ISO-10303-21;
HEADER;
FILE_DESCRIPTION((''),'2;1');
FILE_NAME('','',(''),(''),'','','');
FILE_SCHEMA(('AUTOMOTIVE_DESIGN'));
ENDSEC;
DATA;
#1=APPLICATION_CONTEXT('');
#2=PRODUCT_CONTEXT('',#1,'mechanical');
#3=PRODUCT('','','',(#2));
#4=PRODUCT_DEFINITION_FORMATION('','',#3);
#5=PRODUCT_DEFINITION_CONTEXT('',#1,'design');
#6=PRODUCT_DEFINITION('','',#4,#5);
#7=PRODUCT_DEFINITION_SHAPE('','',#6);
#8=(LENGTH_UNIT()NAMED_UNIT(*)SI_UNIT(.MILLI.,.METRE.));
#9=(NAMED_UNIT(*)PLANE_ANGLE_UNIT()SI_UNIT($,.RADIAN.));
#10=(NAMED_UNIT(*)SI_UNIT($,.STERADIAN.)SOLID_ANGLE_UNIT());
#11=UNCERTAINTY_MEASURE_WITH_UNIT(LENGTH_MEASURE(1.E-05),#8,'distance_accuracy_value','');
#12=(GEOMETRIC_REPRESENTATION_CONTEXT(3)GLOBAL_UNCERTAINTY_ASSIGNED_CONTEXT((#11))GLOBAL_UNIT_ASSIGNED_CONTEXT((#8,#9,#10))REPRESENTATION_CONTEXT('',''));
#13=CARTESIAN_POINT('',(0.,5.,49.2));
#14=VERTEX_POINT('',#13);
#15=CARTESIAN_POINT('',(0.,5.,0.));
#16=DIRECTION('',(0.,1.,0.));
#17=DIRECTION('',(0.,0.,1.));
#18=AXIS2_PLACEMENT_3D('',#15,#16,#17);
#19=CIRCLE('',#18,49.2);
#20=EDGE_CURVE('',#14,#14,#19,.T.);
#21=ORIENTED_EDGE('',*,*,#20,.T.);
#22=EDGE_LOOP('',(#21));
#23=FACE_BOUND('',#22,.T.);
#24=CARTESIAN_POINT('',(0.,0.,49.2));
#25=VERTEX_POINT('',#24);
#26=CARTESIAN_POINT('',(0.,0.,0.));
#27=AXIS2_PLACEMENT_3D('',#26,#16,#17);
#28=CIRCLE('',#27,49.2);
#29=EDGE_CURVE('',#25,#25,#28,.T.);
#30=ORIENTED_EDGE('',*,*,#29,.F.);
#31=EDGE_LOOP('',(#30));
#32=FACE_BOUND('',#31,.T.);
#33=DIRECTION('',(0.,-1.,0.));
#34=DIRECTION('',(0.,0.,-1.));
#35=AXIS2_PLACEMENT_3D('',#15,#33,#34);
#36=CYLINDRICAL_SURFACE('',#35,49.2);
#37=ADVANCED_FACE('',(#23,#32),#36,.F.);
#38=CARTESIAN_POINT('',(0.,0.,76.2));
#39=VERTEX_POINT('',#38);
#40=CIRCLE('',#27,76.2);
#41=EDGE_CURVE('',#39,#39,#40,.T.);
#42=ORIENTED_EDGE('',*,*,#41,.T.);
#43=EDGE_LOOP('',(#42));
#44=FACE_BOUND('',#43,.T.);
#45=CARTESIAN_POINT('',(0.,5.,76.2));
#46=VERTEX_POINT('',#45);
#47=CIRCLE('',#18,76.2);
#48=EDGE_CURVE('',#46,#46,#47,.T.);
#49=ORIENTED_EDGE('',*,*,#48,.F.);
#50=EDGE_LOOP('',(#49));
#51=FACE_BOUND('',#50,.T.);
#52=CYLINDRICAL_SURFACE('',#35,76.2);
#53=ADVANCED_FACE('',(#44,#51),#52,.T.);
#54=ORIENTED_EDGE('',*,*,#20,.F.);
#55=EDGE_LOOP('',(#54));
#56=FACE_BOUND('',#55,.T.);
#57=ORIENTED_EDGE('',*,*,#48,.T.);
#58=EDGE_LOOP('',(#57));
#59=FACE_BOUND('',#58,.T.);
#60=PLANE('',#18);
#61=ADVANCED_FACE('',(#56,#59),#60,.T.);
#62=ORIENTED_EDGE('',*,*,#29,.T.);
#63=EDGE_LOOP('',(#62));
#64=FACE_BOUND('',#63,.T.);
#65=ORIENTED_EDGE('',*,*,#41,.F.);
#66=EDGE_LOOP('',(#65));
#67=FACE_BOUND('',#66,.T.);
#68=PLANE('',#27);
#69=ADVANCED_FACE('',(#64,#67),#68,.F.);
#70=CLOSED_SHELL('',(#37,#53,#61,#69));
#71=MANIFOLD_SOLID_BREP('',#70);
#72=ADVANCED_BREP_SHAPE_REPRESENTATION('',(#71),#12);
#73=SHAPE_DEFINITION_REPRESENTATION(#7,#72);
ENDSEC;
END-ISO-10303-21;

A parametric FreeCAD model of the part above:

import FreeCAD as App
import Part
import Sketcher
from FreeCAD import Vector

doc = App.newDocument("Part")
body = doc.addObject("PartDesign::Body", "Body")

# Sketch on XZ plane
sketch1 = body.newObject("Sketcher::SketchObject", "Sketch")
sketch1.AttachmentSupport = (doc.getObject("XZ_Plane"), [""])
sketch1.MapMode = "FlatFace"
sketch1.addGeometry(Part.Circle(Vector(0, 0, 0), Vector(0, 0, 1), 76), False)
sketch1.addGeometry(Part.Circle(Vector(0, 0, 0), Vector(0, 0, 1), 49), False)
sketch1.addConstraint(Sketcher.Constraint("Coincident", 0, 3, -1, 1))
sketch1.addConstraint(Sketcher.Constraint("Coincident", 1, 3, -1, 1))
sketch1.addConstraint(Sketcher.Constraint("Diameter", 0, 152.4))
sketch1.addConstraint(Sketcher.Constraint("Diameter", 1, 98.4))
pad1 = body.newObject("PartDesign::Pad", "Pad")
pad1.Profile = sketch1
pad1.Length = 5
pad1.Reversed = True

doc.recompute()
